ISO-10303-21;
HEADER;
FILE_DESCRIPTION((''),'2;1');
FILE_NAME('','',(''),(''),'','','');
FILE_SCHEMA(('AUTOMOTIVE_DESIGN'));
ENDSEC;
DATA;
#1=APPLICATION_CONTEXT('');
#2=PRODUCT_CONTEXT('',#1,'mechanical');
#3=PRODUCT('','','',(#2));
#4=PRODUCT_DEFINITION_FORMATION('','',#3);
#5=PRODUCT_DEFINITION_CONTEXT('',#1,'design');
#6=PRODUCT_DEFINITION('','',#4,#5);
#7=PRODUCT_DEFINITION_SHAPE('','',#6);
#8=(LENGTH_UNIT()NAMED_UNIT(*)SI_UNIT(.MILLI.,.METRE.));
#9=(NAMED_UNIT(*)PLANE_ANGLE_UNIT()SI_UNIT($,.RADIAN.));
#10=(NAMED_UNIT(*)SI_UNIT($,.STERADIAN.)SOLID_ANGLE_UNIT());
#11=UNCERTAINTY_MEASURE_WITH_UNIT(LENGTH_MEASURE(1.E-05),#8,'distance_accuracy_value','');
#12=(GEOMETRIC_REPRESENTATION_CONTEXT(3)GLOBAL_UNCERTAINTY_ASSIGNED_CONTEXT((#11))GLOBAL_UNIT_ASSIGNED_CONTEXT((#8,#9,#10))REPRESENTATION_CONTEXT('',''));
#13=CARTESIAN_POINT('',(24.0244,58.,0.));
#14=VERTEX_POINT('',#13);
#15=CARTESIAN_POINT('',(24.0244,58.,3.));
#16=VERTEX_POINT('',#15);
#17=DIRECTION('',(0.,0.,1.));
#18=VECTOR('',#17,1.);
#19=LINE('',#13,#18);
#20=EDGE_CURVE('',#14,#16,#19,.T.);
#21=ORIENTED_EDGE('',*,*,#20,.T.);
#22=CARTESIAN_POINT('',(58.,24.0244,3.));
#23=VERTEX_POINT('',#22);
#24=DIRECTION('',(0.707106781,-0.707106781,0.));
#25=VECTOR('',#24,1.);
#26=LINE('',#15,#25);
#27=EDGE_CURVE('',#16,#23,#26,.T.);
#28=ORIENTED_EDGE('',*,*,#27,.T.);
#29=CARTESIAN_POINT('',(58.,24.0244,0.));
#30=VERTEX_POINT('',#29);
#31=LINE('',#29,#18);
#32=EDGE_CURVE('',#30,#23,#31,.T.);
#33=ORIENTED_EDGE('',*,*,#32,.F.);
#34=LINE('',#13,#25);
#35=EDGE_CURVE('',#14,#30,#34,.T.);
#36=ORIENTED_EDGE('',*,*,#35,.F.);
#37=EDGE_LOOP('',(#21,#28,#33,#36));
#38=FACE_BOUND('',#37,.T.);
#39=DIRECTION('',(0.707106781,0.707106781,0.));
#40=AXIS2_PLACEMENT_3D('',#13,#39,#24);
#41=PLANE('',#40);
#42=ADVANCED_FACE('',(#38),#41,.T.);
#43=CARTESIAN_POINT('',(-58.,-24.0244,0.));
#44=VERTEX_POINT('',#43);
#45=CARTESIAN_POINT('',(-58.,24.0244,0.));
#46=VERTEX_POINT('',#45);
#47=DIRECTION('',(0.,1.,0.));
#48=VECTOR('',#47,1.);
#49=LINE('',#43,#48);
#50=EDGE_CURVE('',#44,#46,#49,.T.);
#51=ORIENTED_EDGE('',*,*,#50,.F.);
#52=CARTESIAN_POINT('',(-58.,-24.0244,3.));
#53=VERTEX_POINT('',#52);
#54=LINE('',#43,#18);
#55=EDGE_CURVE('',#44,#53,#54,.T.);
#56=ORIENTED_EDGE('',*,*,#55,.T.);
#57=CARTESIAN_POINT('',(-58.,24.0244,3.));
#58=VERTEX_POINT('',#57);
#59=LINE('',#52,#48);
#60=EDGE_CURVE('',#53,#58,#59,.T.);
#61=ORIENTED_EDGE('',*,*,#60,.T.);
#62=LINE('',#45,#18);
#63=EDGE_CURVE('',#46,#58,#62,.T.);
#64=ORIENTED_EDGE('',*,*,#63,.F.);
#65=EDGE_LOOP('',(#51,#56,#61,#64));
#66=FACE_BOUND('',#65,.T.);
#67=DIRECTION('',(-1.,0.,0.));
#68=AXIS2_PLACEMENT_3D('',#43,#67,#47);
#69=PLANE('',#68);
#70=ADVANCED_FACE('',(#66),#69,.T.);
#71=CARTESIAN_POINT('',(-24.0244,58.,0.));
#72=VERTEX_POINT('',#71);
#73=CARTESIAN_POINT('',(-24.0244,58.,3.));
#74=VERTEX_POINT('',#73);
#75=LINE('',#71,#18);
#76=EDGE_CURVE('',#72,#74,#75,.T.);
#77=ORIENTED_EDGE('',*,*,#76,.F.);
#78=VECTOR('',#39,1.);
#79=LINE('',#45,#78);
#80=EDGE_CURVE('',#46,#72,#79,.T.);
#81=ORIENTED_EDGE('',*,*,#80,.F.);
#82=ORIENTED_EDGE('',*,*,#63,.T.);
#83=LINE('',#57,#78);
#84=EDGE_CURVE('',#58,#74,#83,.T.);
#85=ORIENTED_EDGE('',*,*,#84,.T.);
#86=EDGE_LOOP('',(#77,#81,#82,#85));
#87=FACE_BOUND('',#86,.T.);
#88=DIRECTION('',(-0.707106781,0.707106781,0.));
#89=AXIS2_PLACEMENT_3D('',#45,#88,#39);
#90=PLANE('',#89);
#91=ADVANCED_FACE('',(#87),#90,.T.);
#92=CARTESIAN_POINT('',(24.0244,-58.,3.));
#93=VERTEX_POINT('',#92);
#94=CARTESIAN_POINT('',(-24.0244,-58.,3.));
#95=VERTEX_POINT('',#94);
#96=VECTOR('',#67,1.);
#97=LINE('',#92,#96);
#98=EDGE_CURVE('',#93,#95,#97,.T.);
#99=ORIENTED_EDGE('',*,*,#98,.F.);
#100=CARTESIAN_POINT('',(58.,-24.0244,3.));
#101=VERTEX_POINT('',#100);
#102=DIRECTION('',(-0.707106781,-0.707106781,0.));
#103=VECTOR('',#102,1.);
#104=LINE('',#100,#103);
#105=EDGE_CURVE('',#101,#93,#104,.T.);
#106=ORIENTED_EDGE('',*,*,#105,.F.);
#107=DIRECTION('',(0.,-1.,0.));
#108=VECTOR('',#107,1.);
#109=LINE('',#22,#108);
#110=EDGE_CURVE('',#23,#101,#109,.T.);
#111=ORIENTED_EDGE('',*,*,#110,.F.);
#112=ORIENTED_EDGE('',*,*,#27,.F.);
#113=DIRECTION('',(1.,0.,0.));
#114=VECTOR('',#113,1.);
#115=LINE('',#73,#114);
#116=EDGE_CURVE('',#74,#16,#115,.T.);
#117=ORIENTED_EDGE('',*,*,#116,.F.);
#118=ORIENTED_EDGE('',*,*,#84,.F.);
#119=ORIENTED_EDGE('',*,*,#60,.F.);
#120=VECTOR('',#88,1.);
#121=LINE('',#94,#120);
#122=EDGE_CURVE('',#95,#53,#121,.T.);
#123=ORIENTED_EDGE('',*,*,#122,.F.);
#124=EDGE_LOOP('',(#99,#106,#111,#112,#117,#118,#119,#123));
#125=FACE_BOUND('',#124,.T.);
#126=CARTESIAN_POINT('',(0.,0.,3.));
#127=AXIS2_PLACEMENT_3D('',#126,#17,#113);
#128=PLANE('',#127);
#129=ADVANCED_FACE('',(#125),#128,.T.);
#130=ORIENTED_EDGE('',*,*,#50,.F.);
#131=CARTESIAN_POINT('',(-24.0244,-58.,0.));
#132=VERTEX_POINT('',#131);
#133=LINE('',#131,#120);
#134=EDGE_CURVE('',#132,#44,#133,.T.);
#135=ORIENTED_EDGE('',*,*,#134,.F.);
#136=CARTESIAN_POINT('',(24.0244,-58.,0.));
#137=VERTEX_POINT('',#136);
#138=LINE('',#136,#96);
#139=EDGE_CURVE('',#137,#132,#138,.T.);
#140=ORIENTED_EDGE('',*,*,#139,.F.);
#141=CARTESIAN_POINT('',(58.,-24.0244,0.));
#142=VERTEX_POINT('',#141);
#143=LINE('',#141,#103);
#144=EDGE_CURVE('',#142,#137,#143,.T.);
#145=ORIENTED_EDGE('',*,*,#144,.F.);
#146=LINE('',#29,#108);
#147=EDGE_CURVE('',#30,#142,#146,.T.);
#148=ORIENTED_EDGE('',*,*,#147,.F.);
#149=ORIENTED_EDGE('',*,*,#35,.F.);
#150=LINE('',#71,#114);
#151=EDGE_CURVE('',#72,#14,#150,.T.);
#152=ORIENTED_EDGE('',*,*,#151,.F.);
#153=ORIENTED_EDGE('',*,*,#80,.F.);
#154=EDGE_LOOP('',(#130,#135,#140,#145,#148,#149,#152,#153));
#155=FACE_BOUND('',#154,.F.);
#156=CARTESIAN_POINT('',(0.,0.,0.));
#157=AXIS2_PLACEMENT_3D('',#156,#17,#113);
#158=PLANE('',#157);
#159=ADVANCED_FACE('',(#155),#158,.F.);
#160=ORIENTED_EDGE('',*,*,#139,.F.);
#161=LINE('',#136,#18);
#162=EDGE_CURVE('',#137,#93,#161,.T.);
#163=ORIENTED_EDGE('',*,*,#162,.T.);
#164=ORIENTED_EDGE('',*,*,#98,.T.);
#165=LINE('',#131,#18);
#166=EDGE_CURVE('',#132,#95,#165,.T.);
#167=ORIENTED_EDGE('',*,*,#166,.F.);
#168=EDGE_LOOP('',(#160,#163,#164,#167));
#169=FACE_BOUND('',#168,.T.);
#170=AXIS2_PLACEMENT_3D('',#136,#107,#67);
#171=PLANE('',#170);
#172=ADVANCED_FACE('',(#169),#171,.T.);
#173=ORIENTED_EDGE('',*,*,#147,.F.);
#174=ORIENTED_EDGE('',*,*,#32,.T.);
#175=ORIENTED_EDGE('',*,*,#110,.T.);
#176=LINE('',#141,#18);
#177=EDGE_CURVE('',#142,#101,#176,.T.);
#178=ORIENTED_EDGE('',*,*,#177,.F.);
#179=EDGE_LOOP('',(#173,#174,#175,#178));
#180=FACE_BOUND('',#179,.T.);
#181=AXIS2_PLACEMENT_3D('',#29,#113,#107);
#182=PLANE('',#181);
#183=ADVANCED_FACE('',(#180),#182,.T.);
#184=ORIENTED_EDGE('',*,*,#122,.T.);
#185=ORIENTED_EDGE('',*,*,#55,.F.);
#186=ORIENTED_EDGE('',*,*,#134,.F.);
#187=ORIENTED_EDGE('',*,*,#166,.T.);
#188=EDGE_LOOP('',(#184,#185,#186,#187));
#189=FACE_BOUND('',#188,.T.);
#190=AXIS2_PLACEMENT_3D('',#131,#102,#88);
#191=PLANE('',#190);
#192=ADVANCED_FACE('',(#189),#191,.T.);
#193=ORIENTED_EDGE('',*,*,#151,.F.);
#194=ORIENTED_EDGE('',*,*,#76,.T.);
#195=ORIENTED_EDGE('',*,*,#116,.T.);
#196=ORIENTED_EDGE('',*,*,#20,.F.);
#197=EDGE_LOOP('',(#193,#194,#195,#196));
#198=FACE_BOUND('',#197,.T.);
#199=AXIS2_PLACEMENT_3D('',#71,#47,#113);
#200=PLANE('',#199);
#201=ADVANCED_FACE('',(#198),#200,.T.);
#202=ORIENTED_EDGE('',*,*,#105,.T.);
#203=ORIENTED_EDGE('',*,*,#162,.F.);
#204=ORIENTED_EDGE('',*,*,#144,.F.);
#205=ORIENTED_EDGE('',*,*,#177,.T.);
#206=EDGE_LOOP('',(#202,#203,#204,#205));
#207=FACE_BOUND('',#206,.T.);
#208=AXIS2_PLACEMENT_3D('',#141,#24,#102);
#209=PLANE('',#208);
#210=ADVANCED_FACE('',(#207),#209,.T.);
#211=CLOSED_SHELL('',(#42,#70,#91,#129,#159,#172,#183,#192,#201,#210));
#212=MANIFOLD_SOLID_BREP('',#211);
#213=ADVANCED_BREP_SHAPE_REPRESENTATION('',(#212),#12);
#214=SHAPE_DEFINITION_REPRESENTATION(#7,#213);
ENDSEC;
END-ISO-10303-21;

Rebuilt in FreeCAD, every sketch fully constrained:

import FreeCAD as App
import Part
import Sketcher

doc = App.newDocument("Part")
body = doc.addObject("PartDesign::Body", "Body")

# Sketch on XY plane
sketch1 = body.newObject("Sketcher::SketchObject", "Sketch")
sketch1.AttachmentSupport = (doc.getObject("XY_Plane"), [""])
sketch1.MapMode = "FlatFace"
sketch1.addGeometry(Part.LineSegment(App.Vector(58, 24, 0), App.Vector(24, 58, 0)), False)
sketch1.addGeometry(Part.LineSegment(App.Vector(24, 58, 0), App.Vector(-24, 58, 0)), False)
sketch1.addGeometry(Part.LineSegment(App.Vector(-24, 58, 0), App.Vector(-58, 24, 0)), False)
sketch1.addGeometry(Part.LineSegment(App.Vector(-58, 24, 0), App.Vector(-58, -24, 0)), False)
sketch1.addGeometry(Part.LineSegment(App.Vector(-58, -24, 0), App.Vector(-24, -58, 0)), False)
sketch1.addGeometry(Part.LineSegment(App.Vector(-24, -58, 0), App.Vector(24, -58, 0)), False)
sketch1.addGeometry(Part.LineSegment(App.Vector(24, -58, 0), App.Vector(58, -24, 0)), False)
sketch1.addGeometry(Part.LineSegment(App.Vector(58, -24, 0), App.Vector(58, 24, 0)), False)
sketch1.addConstraint(Sketcher.Constraint("Coincident", 0, 2, 1, 1))
sketch1.addConstraint(Sketcher.Constraint("Coincident", 1, 2, 2, 1))
sketch1.addConstraint(Sketcher.Constraint("Coincident", 2, 2, 3, 1))
sketch1.addConstraint(Sketcher.Constraint("Coincident", 3, 2, 4, 1))
sketch1.addConstraint(Sketcher.Constraint("Coincident", 4, 2, 5, 1))
sketch1.addConstraint(Sketcher.Constraint("Coincident", 5, 2, 6, 1))
sketch1.addConstraint(Sketcher.Constraint("Coincident", 6, 2, 7, 1))
sketch1.addConstraint(Sketcher.Constraint("Coincident", 7, 2, 0, 1))
sketch1.addConstraint(Sketcher.Constraint("Horizontal", 1))
sketch1.addConstraint(Sketcher.Constraint("Vertical", 3))
sketch1.addConstraint(Sketcher.Constraint("Horizontal", 5))
sketch1.addConstraint(Sketcher.Constraint("Vertical", 7))
sketch1.addConstraint(Sketcher.Constraint("Symmetric", 0, 2, 4, 2, -1, 1))
sketch1.addConstraint(Sketcher.Constraint("Symmetric", 2, 2, 6, 2, -1, 1))
sketch1.addConstraint(Sketcher.Constraint("Perpendicular", 0, 2))
sketch1.addConstraint(Sketcher.Constraint("Perpendicular", 2, 4))
sketch1.addConstraint(Sketcher.Constraint("Perpendicular", 4, 6))
sketch1.addConstraint(Sketcher.Constraint("Horizontal", 3, 2, 6, 2))
sketch1.addConstraint(Sketcher.Constraint("Vertical", 1, 2, 4, 2))
sketch1.addConstraint(Sketcher.Constraint("Equal", 5, 3))
sketch1.addConstraint(Sketcher.Constraint("DistanceY", 4, 2, 1, 2, 116.0))
sketch1.addConstraint(Sketcher.Constraint("DistanceX", 1, 2, 1, 1, 48.0488))
pad1 = body.newObject("PartDesign::Pad", "Pad")
pad1.Profile = sketch1
pad1.Length = 3

doc.recompute()
